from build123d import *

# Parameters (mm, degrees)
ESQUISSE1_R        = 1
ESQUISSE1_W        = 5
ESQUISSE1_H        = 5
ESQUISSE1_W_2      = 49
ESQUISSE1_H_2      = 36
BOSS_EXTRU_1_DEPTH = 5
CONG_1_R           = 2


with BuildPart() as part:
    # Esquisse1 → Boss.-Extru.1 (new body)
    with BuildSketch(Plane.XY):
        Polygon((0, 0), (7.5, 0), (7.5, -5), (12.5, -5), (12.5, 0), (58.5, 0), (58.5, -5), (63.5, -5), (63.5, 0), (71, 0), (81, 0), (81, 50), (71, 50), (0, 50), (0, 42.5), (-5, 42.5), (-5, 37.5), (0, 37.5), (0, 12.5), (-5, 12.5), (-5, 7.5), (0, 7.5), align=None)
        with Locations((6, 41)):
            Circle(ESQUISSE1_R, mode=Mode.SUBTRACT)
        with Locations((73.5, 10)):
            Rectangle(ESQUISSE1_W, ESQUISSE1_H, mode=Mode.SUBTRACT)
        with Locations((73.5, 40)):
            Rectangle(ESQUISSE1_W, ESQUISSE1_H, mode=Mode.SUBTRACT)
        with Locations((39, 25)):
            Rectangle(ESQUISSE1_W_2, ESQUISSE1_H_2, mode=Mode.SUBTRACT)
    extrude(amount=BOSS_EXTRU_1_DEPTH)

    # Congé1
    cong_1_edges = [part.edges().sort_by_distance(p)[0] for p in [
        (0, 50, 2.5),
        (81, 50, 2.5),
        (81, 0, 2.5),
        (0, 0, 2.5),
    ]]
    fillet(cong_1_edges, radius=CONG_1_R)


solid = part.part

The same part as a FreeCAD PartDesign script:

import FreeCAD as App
import Part
import Sketcher

V = App.Vector
Q = App.Units.Quantity


def edges_at(feature, points):
    """Names of the edges that pass closest to the given points."""
    edges = feature.Shape.Edges
    near = lambda p: min(range(len(edges)), key=lambda i: edges[i].distToShape(Part.Vertex(*p))[0])
    return sorted({f"Edge{near(p) + 1}" for p in points})


def add_polygon(sketch, points):
    """Adds a closed chain of lines whose ends are joined by coincident constraints."""
    first, n = sketch.GeometryCount, len(points)
    for a, b in zip(points, points[1:] + points[:1]):
        sketch.addGeometry(Part.LineSegment(App.Vector(*a, 0), App.Vector(*b, 0)), False)
    for i in range(n):
        sketch.addConstraint(Sketcher.Constraint("Coincident", first + i, 2, first + (i + 1) % n, 1))

doc = App.newDocument("Part")
body = doc.addObject("PartDesign::Body", "Body")

# Sketch on XY plane
sketch1 = body.newObject("Sketcher::SketchObject", "Sketch")
sketch1.AttachmentSupport = (doc.getObject("XY_Plane"), [""])
sketch1.MapMode = "FlatFace"
add_polygon(sketch1, [(0, 0), (7.5, 0), (7.5, -5), (12.5, -5), (12.5, 0), (58.5, 0), (58.5, -5), (63.5, -5), (63.5, 0), (81, 0), (81, 50), (0, 50), (0, 42.5), (-5, 42.5), (-5, 37.5), (0, 37.5), (0, 12.5), (-5, 12.5), (-5, 7.5), (0, 7.5)])  # lines 0-19
add_polygon(sketch1, [(76, 7.5), (71, 7.5), (71, 12.5), (76, 12.5)])  # lines 20-23
add_polygon(sketch1, [(63.5, 7), (14.5, 7), (14.5, 43), (63.5, 43)])  # lines 24-27
sketch1.addGeometry(Part.Circle(V(6, 41, 0), V(0, 0, 1), 1), False)  # 28
add_polygon(sketch1, [(76, 37.5), (71, 37.5), (71, 42.5), (76, 42.5)])  # lines 29-32
sketch1.addConstraint([
    Sketcher.Constraint("Horizontal", 0),
    Sketcher.Constraint("Vertical", 1),
    Sketcher.Constraint("Horizontal", 2),
    Sketcher.Constraint("Vertical", 3),
    Sketcher.Constraint("Horizontal", 4),
    Sketcher.Constraint("Vertical", 5),
    Sketcher.Constraint("Horizontal", 6),
    Sketcher.Constraint("Vertical", 7),
    Sketcher.Constraint("Horizontal", 8),
    Sketcher.Constraint("Vertical", 9),
    Sketcher.Constraint("Horizontal", 10),
    Sketcher.Constraint("Vertical", 11),
    Sketcher.Constraint("Horizontal", 12),
    Sketcher.Constraint("Vertical", 13),
    Sketcher.Constraint("Horizontal", 14),
    Sketcher.Constraint("Vertical", 15),
    Sketcher.Constraint("Horizontal", 16),
    Sketcher.Constraint("Vertical", 17),
    Sketcher.Constraint("Horizontal", 18),
    Sketcher.Constraint("Vertical", 19),
    Sketcher.Constraint("Horizontal", 20),
    Sketcher.Constraint("Vertical", 21),
    Sketcher.Constraint("Horizontal", 22),
    Sketcher.Constraint("Vertical", 23),
    Sketcher.Constraint("Horizontal", 24),
    Sketcher.Constraint("Vertical", 25),
    Sketcher.Constraint("Horizontal", 26),
    Sketcher.Constraint("Vertical", 27),
    Sketcher.Constraint("Horizontal", 29),
    Sketcher.Constraint("Vertical", 30),
    Sketcher.Constraint("Horizontal", 31),
    Sketcher.Constraint("Vertical", 32),
    Sketcher.Constraint("Coincident", 19, 2, -1, 1),
    Sketcher.Constraint("PointOnObject", 3, 2, -1),
    Sketcher.Constraint("PointOnObject", 7, 2, -1),
    Sketcher.Constraint("PointOnObject", 10, 2, -2),
    Sketcher.Constraint("PointOnObject", 14, 2, -2),
    Sketcher.Constraint("Horizontal", 2, 2, 5, 2),
    Sketcher.Constraint("Horizontal", 18, 2, 20, 2),
    Sketcher.Constraint("Horizontal", 16, 2, 21, 2),
    Sketcher.Constraint("Horizontal", 14, 2, 29, 2),
    Sketcher.Constraint("Horizontal", 12, 2, 30, 2),
    Sketcher.Constraint("Vertical", 13, 2, 16, 2),
    Sketcher.Constraint("Vertical", 7, 2, 26, 2),
    Sketcher.Constraint("Vertical", 21, 2, 29, 2),
    Sketcher.Constraint("Vertical", 23, 2, 31, 2),
    Sketcher.Constraint("Equal", 2, 6),
    Sketcher.Constraint("Equal", 6, 12),
    Sketcher.Constraint("Equal", 18, 20),
    Sketcher.Constraint("Equal", 31, 1),
    Sketcher.Constraint("Equal", 0, 11),
    Sketcher.Constraint("Equal", 7, 13),
    Sketcher.Constraint("Equal", 13, 17),
    Sketcher.Constraint("Equal", 11, 19),
    Sketcher.Constraint("Diameter", 28, Q("2 mm")),
    Sketcher.Constraint("DistanceX", 2, 1, 2, 2, Q("5 mm")),
    Sketcher.Constraint("DistanceX", 4, 1, 4, 2, Q("46 mm")),
    Sketcher.Constraint("DistanceX", 10, 2, 10, 1, Q("81 mm")),
    Sketcher.Constraint("DistanceX", 24, 2, 24, 1, Q("49 mm")),
    Sketcher.Constraint("DistanceY", 9, 1, 9, 2, Q("50 mm")),
    Sketcher.Constraint("DistanceY", 15, 2, 15, 1, Q("25 mm")),
    Sketcher.Constraint("DistanceY", 25, 1, 25, 2, Q("36 mm")),
    Sketcher.Constraint("DistanceX", -1, 1, 28, 3, Q("6 mm")),
    Sketcher.Constraint("DistanceY", -1, 1, 28, 3, Q("41 mm")),
    Sketcher.Constraint("DistanceX", -1, 1, 20, 2, Q("71 mm")),
    Sketcher.Constraint("DistanceY", -1, 1, 24, 2, Q("7 mm")),
])
pad1 = body.newObject("PartDesign::Pad", "Pad")
pad1.Profile = sketch1
pad1.Length = 5
doc.recompute()

fillet = body.newObject("PartDesign::Fillet", "Fillet")
fillet.Base = (pad1, edges_at(pad1, [
    (0, 50, 2.5),
    (81, 50, 2.5),
    (81, 0, 2.5),
    (0, 0, 2.5),
]))
fillet.Radius = 2

doc.recompute()
